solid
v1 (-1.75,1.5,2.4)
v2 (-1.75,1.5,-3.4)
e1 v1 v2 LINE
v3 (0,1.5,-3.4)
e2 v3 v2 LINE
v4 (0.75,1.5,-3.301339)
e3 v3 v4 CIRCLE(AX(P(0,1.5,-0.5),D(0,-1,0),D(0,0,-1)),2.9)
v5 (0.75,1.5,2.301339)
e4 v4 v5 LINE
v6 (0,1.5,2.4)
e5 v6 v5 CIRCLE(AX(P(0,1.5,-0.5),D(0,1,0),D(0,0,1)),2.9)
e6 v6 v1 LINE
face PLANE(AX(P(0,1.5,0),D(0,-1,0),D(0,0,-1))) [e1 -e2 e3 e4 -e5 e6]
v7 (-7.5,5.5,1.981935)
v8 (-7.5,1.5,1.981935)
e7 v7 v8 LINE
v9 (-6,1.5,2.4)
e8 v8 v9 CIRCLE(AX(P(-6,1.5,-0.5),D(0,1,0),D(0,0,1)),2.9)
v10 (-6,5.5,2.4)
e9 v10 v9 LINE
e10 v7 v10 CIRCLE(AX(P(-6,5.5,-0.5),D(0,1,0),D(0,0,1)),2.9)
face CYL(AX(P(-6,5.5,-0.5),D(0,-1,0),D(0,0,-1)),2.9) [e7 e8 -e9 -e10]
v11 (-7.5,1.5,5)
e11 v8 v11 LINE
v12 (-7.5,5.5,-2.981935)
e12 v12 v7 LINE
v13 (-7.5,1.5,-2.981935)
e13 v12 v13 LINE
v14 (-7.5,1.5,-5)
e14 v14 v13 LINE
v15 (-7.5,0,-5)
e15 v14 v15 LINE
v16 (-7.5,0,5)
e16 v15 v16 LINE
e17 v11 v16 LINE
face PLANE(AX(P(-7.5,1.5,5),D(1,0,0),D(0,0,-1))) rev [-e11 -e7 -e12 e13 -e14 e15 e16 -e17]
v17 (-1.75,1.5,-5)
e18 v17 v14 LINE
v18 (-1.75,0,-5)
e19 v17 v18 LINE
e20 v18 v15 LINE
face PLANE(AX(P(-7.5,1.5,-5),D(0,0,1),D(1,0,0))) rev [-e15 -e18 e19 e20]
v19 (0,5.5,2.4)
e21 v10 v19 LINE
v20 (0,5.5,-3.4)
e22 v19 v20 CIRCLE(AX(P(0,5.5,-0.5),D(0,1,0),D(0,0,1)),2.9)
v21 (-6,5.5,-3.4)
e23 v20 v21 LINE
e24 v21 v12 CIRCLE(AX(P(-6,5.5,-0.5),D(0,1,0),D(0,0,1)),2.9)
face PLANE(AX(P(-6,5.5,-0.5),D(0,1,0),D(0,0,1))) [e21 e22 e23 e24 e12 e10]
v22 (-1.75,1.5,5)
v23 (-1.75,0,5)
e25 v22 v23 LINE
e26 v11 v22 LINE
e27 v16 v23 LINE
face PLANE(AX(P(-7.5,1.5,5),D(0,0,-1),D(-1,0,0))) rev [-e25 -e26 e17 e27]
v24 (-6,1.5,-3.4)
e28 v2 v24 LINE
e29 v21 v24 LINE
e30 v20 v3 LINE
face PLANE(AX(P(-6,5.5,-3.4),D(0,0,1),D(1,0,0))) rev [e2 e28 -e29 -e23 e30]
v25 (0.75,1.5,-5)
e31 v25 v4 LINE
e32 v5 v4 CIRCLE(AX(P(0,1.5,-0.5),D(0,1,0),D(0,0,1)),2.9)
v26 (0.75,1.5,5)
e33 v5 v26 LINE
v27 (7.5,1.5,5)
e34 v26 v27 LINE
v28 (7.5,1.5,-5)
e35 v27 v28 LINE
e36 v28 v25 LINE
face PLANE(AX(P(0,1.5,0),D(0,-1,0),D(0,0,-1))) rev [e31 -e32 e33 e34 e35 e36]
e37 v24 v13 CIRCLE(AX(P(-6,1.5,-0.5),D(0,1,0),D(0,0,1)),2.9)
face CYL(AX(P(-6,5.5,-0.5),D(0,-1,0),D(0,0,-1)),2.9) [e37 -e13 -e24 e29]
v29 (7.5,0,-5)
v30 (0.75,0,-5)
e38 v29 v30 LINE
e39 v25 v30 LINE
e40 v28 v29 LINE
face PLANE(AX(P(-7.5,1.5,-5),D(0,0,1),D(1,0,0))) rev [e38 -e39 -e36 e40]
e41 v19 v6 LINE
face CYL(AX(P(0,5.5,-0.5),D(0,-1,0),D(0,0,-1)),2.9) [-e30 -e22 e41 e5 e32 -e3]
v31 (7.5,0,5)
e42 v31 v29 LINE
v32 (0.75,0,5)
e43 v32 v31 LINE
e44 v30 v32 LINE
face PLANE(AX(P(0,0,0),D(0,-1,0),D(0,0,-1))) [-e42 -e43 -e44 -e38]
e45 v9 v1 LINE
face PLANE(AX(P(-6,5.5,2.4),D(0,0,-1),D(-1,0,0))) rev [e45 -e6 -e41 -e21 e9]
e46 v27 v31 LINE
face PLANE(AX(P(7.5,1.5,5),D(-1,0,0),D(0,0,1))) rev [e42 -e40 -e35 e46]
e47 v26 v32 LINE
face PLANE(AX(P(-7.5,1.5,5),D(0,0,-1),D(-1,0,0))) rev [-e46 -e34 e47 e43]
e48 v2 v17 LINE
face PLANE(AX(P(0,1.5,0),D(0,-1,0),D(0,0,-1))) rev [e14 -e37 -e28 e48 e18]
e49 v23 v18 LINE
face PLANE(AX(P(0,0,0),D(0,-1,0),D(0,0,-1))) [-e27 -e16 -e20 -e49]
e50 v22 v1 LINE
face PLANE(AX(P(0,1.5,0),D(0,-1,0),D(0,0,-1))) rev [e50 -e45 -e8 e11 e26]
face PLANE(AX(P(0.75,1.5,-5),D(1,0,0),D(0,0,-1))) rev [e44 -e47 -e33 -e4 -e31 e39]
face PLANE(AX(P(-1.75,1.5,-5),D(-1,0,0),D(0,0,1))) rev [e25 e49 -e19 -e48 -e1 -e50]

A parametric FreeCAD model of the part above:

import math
import FreeCAD as App
import Part
import Sketcher
Q = App.Units.Quantity

doc = App.newDocument("Part")
body = doc.addObject("PartDesign::Body", "Body")

sketch1 = doc.addObject("Sketcher::SketchObject", "Sketch")
body.addObject(sketch1)
sketch1.AttachmentSupport = (doc.XZ_Plane, [""])
sketch1.MapMode = "FlatFace"
sketch1.addGeometry(Part.LineSegment(App.Vector(-7.5, -5, 0), App.Vector(-7.5, 5, 0)), False)
sketch1.addGeometry(Part.LineSegment(App.Vector(-7.5, 5, 0), App.Vector(7.5, 5, 0)), False)
sketch1.addGeometry(Part.LineSegment(App.Vector(7.5, 5, 0), App.Vector(7.5, -5, 0)), False)
sketch1.addGeometry(Part.LineSegment(App.Vector(7.5, -5, 0), App.Vector(-7.5, -5, 0)), False)
sketch1.addConstraint(Sketcher.Constraint("Coincident", 0, 2, 1, 1))
sketch1.addConstraint(Sketcher.Constraint("Coincident", 1, 2, 2, 1))
sketch1.addConstraint(Sketcher.Constraint("Coincident", 2, 2, 3, 1))
sketch1.addConstraint(Sketcher.Constraint("Coincident", 3, 2, 0, 1))
sketch1.addConstraint(Sketcher.Constraint("Vertical", 0))
sketch1.addConstraint(Sketcher.Constraint("Horizontal", 1))
sketch1.addConstraint(Sketcher.Constraint("Vertical", 2))
sketch1.addConstraint(Sketcher.Constraint("Horizontal", 3))
sketch1.addConstraint(Sketcher.Constraint("Symmetric", 0, 2, 2, 2, -1, 1))
sketch1.addConstraint(Sketcher.Constraint("DistanceX", 1, 1, 1, 2, Q("15 mm")))
sketch1.addConstraint(Sketcher.Constraint("DistanceY", 0, 1, 0, 2, Q("10 mm")))
pad1 = doc.addObject("PartDesign::Pad", "Pad")
body.addObject(pad1)
pad1.Profile = sketch1
pad1.Length = 1.5
pad1.Reversed = True

sketch2 = doc.addObject("Sketcher::SketchObject", "Sketch001")
body.addObject(sketch2)
sketch2.AttachmentSupport = (doc.XZ_Plane, [""])
sketch2.MapMode = "FlatFace"
sketch2.AttachmentOffset = App.Placement(App.Vector(0, 0, -1.5), App.Rotation())
sketch2.addGeometry(Part.LineSegment(App.Vector(0, -3.4, 0), App.Vector(-6, -3.4, 0)), False)
sketch2.addGeometry(Part.ArcOfCircle(Part.Circle(App.Vector(-6, -0.5, 0), App.Vector(0, 0, 1), 2.9), math.radians(-121.14739), math.radians(-90)), False)
sketch2.addGeometry(Part.LineSegment(App.Vector(-7.5, -2.981935, 0), App.Vector(-7.5, 1.981935, 0)), False)
sketch2.addGeometry(Part.ArcOfCircle(Part.Circle(App.Vector(-6, -0.5, 0), App.Vector(0, 0, 1), 2.9), math.radians(90), math.radians(121.14739)), False)
sketch2.addGeometry(Part.LineSegment(App.Vector(-6, 2.4, 0), App.Vector(0, 2.4, 0)), False)
sketch2.addGeometry(Part.ArcOfCircle(Part.Circle(App.Vector(0, -0.5, 0), App.Vector(0, 0, 1), 2.9), math.radians(-90), math.radians(90)), False)
sketch2.addConstraint(Sketcher.Constraint("Tangent", 0, 2, 1, 2))
sketch2.addConstraint(Sketcher.Constraint("Coincident", 1, 1, 2, 1))
sketch2.addConstraint(Sketcher.Constraint("Coincident", 2, 2, 3, 2))
sketch2.addConstraint(Sketcher.Constraint("Tangent", 3, 1, 4, 1))
sketch2.addConstraint(Sketcher.Constraint("Tangent", 4, 2, 5, 2))
sketch2.addConstraint(Sketcher.Constraint("Tangent", 5, 1, 0, 1))
sketch2.addConstraint(Sketcher.Constraint("Horizontal", 0))
sketch2.addConstraint(Sketcher.Constraint("Vertical", 2))
sketch2.addConstraint(Sketcher.Constraint("Horizontal", 4))
sketch2.addConstraint(Sketcher.Constraint("Coincident", 3, 3, 1, 3))
sketch2.addConstraint(Sketcher.Constraint("Equal", 1, 3))
sketch2.addConstraint(Sketcher.Constraint("PointOnObject", 5, 3, -2))
sketch2.addConstraint(Sketcher.Constraint("Radius", 1, Q("2.9 mm")))
sketch2.addConstraint(Sketcher.Constraint("DistanceX", 0, 2, 0, 1, Q("6 mm")))
sketch2.addConstraint(Sketcher.Constraint("DistanceY", 1, 3, -1, 1, Q("0.5 mm")))
sketch2.addConstraint(Sketcher.Constraint("DistanceX", 1, 1, -1, 1, Q("7.5 mm")))
pad2 = doc.addObject("PartDesign::Pad", "Pad001")
body.addObject(pad2)
pad2.Profile = sketch2
pad2.Length = 4
pad2.Reversed = True

sketch3 = doc.addObject("Sketcher::SketchObject", "Sketch002")
body.addObject(sketch3)
sketch3.AttachmentSupport = (doc.XZ_Plane, [""])
sketch3.MapMode = "FlatFace"
sketch3.addGeometry(Part.LineSegment(App.Vector(-1.75, 5, 0), App.Vector(-1.75, -5, 0)), False)
sketch3.addGeometry(Part.LineSegment(App.Vector(-1.75, -5, 0), App.Vector(0.75, -5, 0)), False)
sketch3.addGeometry(Part.LineSegment(App.Vector(0.75, -5, 0), App.Vector(0.75, 5, 0)), False)
sketch3.addGeometry(Part.LineSegment(App.Vector(0.75, 5, 0), App.Vector(-1.75, 5, 0)), False)
sketch3.addConstraint(Sketcher.Constraint("Coincident", 0, 2, 1, 1))
sketch3.addConstraint(Sketcher.Constraint("Coincident", 1, 2, 2, 1))
sketch3.addConstraint(Sketcher.Constraint("Coincident", 2, 2, 3, 1))
sketch3.addConstraint(Sketcher.Constraint("Coincident", 3, 2, 0, 1))
sketch3.addConstraint(Sketcher.Constraint("Vertical", 0))
sketch3.addConstraint(Sketcher.Constraint("Horizontal", 1))
sketch3.addConstraint(Sketcher.Constraint("Vertical", 2))
sketch3.addConstraint(Sketcher.Constraint("Horizontal", 3))
sketch3.addConstraint(Sketcher.Constraint("DistanceY", 0, 2, 0, 1, Q("10 mm")))
sketch3.addConstraint(Sketcher.Constraint("DistanceX", 1, 1, 1, 2, Q("2.5 mm")))
sketch3.addConstraint(Sketcher.Constraint("DistanceY", 0, 2, -1, 1, Q("5 mm")))
sketch3.addConstraint(Sketcher.Constraint("DistanceX", 0, 2, -1, 1, Q("1.75 mm")))
pocket1 = doc.addObject("PartDesign::Pocket", "Pocket")
body.addObject(pocket1)
pocket1.Profile = sketch3
pocket1.Length = 1.5

doc.recompute()
